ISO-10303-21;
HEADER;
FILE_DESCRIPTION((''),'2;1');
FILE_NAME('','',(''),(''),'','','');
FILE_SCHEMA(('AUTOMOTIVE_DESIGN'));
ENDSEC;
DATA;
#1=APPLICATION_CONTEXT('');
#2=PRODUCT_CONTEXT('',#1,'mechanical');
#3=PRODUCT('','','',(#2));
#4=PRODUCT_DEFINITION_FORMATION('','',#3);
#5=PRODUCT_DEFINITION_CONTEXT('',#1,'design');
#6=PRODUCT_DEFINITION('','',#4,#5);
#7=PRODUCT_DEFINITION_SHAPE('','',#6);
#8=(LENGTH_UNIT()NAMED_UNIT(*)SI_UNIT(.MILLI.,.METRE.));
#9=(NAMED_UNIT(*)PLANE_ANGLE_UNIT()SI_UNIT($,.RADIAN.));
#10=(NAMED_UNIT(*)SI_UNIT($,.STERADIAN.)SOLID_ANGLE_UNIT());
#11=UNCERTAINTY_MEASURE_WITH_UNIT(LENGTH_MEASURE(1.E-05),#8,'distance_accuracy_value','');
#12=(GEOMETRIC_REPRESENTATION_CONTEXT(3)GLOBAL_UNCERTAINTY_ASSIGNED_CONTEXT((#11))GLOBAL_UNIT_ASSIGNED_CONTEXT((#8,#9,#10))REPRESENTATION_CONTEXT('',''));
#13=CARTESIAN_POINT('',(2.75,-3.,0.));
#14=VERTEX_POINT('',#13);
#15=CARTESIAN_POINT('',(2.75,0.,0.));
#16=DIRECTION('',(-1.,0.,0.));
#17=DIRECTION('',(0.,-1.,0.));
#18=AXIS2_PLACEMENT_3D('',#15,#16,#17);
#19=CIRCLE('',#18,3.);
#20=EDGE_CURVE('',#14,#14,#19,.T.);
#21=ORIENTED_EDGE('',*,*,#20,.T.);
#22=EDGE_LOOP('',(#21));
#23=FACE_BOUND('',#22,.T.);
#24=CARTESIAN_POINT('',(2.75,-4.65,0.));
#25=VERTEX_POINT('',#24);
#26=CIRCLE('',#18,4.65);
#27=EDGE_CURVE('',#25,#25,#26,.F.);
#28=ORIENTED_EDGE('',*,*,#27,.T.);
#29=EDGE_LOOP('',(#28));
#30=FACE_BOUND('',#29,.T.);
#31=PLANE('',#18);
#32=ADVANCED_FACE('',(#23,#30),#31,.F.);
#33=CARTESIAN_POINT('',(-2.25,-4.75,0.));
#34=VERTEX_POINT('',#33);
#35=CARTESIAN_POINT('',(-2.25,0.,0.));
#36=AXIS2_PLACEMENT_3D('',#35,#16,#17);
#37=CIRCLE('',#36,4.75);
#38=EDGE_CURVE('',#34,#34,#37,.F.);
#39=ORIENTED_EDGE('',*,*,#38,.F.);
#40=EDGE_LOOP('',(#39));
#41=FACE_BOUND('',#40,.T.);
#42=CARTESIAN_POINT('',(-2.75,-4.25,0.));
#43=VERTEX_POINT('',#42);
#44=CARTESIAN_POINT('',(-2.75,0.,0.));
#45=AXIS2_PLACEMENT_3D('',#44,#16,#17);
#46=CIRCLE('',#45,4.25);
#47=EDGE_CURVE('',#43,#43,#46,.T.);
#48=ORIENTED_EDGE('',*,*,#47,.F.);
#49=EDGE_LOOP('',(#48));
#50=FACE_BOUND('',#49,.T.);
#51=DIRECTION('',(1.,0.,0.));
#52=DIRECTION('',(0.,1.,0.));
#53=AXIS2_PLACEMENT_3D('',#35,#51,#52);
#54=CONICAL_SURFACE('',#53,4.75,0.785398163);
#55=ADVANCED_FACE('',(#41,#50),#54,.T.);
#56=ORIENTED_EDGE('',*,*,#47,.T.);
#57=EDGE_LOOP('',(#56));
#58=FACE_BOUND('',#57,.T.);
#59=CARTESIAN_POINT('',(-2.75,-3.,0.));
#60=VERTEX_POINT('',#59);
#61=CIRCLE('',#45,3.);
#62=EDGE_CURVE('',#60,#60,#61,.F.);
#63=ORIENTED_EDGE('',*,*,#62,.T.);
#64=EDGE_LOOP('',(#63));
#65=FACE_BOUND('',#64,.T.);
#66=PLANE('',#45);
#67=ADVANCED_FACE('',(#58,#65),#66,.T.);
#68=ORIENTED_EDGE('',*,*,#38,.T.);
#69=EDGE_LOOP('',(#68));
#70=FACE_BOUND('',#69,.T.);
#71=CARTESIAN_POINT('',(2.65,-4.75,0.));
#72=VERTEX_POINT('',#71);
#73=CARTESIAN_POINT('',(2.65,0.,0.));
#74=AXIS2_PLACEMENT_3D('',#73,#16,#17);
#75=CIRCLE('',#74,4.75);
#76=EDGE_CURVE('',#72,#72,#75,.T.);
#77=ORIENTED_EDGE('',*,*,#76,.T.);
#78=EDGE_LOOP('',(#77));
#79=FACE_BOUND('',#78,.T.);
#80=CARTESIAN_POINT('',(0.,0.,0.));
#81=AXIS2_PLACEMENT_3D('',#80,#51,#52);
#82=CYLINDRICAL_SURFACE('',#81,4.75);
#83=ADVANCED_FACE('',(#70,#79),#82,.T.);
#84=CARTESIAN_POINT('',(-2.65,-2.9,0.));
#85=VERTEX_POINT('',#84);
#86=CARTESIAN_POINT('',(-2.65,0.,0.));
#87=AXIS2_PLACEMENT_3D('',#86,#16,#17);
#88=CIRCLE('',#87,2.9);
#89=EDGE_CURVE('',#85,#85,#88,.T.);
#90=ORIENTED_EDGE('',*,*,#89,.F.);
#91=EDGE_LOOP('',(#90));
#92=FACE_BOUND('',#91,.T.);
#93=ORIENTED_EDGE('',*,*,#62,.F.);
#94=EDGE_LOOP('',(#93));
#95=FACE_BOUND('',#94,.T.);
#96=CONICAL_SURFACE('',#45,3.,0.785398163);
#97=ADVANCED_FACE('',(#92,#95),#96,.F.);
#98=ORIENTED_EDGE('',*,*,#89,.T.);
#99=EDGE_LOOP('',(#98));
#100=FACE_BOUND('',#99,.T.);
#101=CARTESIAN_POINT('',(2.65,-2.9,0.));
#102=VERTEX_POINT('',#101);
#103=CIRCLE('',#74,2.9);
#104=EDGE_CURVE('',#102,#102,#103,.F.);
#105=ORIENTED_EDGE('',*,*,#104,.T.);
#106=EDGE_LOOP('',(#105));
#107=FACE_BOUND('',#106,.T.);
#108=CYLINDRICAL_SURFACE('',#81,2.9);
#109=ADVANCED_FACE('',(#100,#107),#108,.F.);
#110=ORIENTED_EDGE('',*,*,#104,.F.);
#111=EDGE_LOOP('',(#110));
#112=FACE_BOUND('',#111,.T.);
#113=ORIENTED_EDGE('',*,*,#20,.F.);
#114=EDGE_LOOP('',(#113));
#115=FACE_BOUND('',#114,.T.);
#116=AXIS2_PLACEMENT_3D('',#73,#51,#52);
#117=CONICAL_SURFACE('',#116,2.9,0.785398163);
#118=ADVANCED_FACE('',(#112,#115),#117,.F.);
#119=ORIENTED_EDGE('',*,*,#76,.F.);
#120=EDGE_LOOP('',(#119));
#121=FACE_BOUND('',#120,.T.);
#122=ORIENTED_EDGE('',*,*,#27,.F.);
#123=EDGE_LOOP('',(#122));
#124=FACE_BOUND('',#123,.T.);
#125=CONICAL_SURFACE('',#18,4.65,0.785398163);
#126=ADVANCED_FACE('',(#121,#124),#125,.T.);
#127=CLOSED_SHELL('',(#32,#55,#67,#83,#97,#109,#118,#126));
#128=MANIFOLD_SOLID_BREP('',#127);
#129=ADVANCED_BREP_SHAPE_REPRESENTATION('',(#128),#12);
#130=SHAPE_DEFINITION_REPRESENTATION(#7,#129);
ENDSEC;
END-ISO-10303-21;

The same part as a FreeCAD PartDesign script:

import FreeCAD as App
import Part
import Sketcher
from FreeCAD import Vector
Q = App.Units.Quantity


def edges_at(feature, points):
    """Names of the edges that pass closest to the given points."""
    edges = feature.Shape.Edges
    near = lambda p: min(range(len(edges)), key=lambda i: edges[i].distToShape(Part.Vertex(*p))[0])
    return sorted({f"Edge{near(p) + 1}" for p in points})


def add_polygon(sketch, points):
    """Adds a closed chain of lines whose ends are joined by coincident constraints."""
    first, n = sketch.GeometryCount, len(points)
    for a, b in zip(points, points[1:] + points[:1]):
        sketch.addGeometry(Part.LineSegment(App.Vector(*a, 0), App.Vector(*b, 0)), False)
    for i in range(n):
        sketch.addConstraint(Sketcher.Constraint("Coincident", first + i, 2, first + (i + 1) % n, 1))

doc = App.newDocument("Part")
body = doc.addObject("PartDesign::Body", "Body")

sketch1 = body.newObject("Sketcher::SketchObject", "Sketch")
sketch1.AttachmentSupport = (doc.getObject("XY_Plane"), [""])
sketch1.MapMode = "FlatFace"
add_polygon(sketch1, [(-2.8, 4.8), (-2.8, 2.9), (2.8, 2.9), (2.8, 4.8)])
sketch1.addConstraint(Sketcher.Constraint("Vertical", 0))
sketch1.addConstraint(Sketcher.Constraint("Horizontal", 1))
sketch1.addConstraint(Sketcher.Constraint("Vertical", 2))
sketch1.addConstraint(Sketcher.Constraint("Horizontal", 3))
sketch1.addConstraint(Sketcher.Constraint("DistanceX", 1, 1, 1, 2, Q("5.5 mm")))
sketch1.addConstraint(Sketcher.Constraint("DistanceY", 0, 2, 0, 1, Q("1.85 mm")))
sketch1.addConstraint(Sketcher.Constraint("DistanceY", -1, 1, 0, 2, Q("2.9 mm")))
sketch1.addConstraint(Sketcher.Constraint("DistanceX", 0, 2, -1, 1, Q("2.75 mm")))
revolution = body.newObject("PartDesign::Revolution", "Revolution")
revolution.Profile = sketch1
revolution.ReferenceAxis = (sketch1, ["H_Axis"])
revolution.Angle = 360
doc.recompute()

chamfer = body.newObject("PartDesign::Chamfer", "Chamfer")
chamfer.Base = (revolution, edges_at(revolution, [(2.75, -2.9, 0), (-2.75, -2.9, 0), (2.75, -4.75, 0)]))
chamfer.Size = 0.1
doc.recompute()

chamfer2 = body.newObject("PartDesign::Chamfer", "Chamfer001")
chamfer2.Base = (chamfer, edges_at(chamfer, [(-2.75, -4.75, 0)]))
chamfer2.Size = 0.5

doc.recompute()
